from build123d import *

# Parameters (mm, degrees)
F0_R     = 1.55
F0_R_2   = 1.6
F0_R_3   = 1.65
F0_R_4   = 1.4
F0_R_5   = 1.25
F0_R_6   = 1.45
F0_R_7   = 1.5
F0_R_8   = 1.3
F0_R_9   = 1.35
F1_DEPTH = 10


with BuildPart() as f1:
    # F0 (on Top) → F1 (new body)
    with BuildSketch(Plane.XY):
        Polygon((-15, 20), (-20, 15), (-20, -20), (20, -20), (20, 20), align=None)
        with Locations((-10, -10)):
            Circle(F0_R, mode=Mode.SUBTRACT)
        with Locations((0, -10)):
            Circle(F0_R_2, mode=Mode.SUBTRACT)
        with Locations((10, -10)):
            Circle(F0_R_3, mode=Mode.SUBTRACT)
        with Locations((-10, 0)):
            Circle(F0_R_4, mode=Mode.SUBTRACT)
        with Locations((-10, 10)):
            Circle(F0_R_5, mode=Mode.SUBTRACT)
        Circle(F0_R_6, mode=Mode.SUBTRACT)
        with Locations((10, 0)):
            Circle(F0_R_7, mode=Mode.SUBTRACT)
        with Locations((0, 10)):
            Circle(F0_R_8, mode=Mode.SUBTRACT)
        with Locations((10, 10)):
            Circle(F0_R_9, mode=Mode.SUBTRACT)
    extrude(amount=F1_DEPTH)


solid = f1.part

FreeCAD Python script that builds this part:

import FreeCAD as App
import Part
import Sketcher
from FreeCAD import Vector

doc = App.newDocument("Part")
params = doc.addObject("Spreadsheet::Sheet", "Params")
for row, (alias, value) in enumerate([
    ("sketch1_diameter", "3 mm"),
    ("sketch1_diameter2", "3.1 mm"),
    ("sketch1_diameter3", "3.2 mm"),
    ("sketch1_diameter4", "3.3 mm"),
    ("sketch1_diameter5", "2.8 mm"),
    ("pad1_length", "10 mm"),
], start=1):
    params.set(f"A{row}", alias)
    params.set(f"B{row}", "=" + value)
    params.setAlias(f"B{row}", alias)

body = doc.addObject("PartDesign::Body", "Body")

# Sketch on XY plane
sketch1 = doc.addObject("Sketcher::SketchObject", "Sketch")
body.addObject(sketch1)
sketch1.AttachmentSupport = (doc.XY_Plane, [""])
sketch1.MapMode = "FlatFace"
sketch1.addGeometry([
    Part.LineSegment(Vector(-15, 20, 0), Vector(-20, 15, 0)),  # 0
    Part.LineSegment(Vector(-20, 15, 0), Vector(-20, -20, 0)),  # 1
    Part.LineSegment(Vector(-20, -20, 0), Vector(20, -20, 0)),  # 2
    Part.LineSegment(Vector(20, -20, 0), Vector(20, 20, 0)),  # 3
    Part.LineSegment(Vector(20, 20, 0), Vector(-15, 20, 0)),  # 4
    Part.Circle(Vector(-10, -10, 0), Vector(0, 0, 1), 1.6),  # 5
    Part.Circle(Vector(0, -10, 0), Vector(0, 0, 1), 1.6),  # 6
    Part.Circle(Vector(10, -10, 0), Vector(0, 0, 1), 1.6),  # 7
    Part.Circle(Vector(-10, 0, 0), Vector(0, 0, 1), 1.4),  # 8
    Part.Circle(Vector(0, 0, 0), Vector(0, 0, 1), 1.4),  # 9
    Part.Circle(Vector(-10, 10, 0), Vector(0, 0, 1), 1.2),  # 10
    Part.Circle(Vector(0, 10, 0), Vector(0, 0, 1), 1.3),  # 11
    Part.Circle(Vector(10, 0, 0), Vector(0, 0, 1), 1.5),  # 12
    Part.Circle(Vector(10, 10, 0), Vector(0, 0, 1), 1.4),  # 13
], False)
sketch1.addConstraint([
    Sketcher.Constraint("Coincident", 0, 2, 1, 1),
    Sketcher.Constraint("Coincident", 1, 2, 2, 1),
    Sketcher.Constraint("Coincident", 2, 2, 3, 1),
    Sketcher.Constraint("Coincident", 3, 2, 4, 1),
    Sketcher.Constraint("Coincident", 4, 2, 0, 1),
    Sketcher.Constraint("Vertical", 1),
    Sketcher.Constraint("Horizontal", 2),
    Sketcher.Constraint("Vertical", 3),
    Sketcher.Constraint("Horizontal", 4),
    Sketcher.Constraint("Coincident", 9, 3, -1, 1),
    Sketcher.Constraint("Symmetric", 7, 3, 10, 3, -1, 1),
    Sketcher.Constraint("Symmetric", 6, 3, 11, 3, -1, 1),
    Sketcher.Constraint("Symmetric", 8, 3, 12, 3, -1, 1),
    Sketcher.Constraint("Symmetric", 5, 3, 13, 3, -1, 1),
    Sketcher.Constraint("Symmetric", 1, 2, 3, 2, -1, 1),
    Sketcher.Constraint("Symmetric", 5, 3, 7, 3, -2),
    Sketcher.Constraint("PointOnObject", 6, 3, -2),
    Sketcher.Constraint("PointOnObject", 8, 3, -1),
    Sketcher.Constraint("Horizontal", 5, 3, 6, 3),
    Sketcher.Constraint("Vertical", 5, 3, 8, 3),
    Sketcher.Constraint("Equal", 4, 1),
    Sketcher.Constraint("Equal", 2, 3),
    Sketcher.Constraint("Diameter", 12, 3.0),
    Sketcher.Constraint("Diameter", 5, 3.1),
    Sketcher.Constraint("Diameter", 6, 3.2),
    Sketcher.Constraint("Diameter", 7, 3.3),
    Sketcher.Constraint("Diameter", 8, 2.8),
    Sketcher.Constraint("Diameter", 9, 2.9),
    Sketcher.Constraint("Diameter", 10, 2.5),
    Sketcher.Constraint("Diameter", 11, 2.6),
    Sketcher.Constraint("Diameter", 13, 2.7),
    Sketcher.Constraint("DistanceX", 2, 1, 2, 2, 40.0),
    Sketcher.Constraint("DistanceX", 4, 2, 4, 1, 35.0),
    Sketcher.Constraint("DistanceX", 5, 3, -1, 1, 10.0),
    Sketcher.Constraint("DistanceY", 5, 3, -1, 1, 10.0),
])
sketch1.setExpression("Constraints[22]", "Params.sketch1_diameter")
sketch1.setExpression("Constraints[23]", "Params.sketch1_diameter2")
sketch1.setExpression("Constraints[24]", "Params.sketch1_diameter3")
sketch1.setExpression("Constraints[25]", "Params.sketch1_diameter4")
sketch1.setExpression("Constraints[26]", "Params.sketch1_diameter5")
pad1 = doc.addObject("PartDesign::Pad", "Pad")
body.addObject(pad1)
pad1.Profile = sketch1
pad1.setExpression("Length", "Params.pad1_length")

doc.recompute()
